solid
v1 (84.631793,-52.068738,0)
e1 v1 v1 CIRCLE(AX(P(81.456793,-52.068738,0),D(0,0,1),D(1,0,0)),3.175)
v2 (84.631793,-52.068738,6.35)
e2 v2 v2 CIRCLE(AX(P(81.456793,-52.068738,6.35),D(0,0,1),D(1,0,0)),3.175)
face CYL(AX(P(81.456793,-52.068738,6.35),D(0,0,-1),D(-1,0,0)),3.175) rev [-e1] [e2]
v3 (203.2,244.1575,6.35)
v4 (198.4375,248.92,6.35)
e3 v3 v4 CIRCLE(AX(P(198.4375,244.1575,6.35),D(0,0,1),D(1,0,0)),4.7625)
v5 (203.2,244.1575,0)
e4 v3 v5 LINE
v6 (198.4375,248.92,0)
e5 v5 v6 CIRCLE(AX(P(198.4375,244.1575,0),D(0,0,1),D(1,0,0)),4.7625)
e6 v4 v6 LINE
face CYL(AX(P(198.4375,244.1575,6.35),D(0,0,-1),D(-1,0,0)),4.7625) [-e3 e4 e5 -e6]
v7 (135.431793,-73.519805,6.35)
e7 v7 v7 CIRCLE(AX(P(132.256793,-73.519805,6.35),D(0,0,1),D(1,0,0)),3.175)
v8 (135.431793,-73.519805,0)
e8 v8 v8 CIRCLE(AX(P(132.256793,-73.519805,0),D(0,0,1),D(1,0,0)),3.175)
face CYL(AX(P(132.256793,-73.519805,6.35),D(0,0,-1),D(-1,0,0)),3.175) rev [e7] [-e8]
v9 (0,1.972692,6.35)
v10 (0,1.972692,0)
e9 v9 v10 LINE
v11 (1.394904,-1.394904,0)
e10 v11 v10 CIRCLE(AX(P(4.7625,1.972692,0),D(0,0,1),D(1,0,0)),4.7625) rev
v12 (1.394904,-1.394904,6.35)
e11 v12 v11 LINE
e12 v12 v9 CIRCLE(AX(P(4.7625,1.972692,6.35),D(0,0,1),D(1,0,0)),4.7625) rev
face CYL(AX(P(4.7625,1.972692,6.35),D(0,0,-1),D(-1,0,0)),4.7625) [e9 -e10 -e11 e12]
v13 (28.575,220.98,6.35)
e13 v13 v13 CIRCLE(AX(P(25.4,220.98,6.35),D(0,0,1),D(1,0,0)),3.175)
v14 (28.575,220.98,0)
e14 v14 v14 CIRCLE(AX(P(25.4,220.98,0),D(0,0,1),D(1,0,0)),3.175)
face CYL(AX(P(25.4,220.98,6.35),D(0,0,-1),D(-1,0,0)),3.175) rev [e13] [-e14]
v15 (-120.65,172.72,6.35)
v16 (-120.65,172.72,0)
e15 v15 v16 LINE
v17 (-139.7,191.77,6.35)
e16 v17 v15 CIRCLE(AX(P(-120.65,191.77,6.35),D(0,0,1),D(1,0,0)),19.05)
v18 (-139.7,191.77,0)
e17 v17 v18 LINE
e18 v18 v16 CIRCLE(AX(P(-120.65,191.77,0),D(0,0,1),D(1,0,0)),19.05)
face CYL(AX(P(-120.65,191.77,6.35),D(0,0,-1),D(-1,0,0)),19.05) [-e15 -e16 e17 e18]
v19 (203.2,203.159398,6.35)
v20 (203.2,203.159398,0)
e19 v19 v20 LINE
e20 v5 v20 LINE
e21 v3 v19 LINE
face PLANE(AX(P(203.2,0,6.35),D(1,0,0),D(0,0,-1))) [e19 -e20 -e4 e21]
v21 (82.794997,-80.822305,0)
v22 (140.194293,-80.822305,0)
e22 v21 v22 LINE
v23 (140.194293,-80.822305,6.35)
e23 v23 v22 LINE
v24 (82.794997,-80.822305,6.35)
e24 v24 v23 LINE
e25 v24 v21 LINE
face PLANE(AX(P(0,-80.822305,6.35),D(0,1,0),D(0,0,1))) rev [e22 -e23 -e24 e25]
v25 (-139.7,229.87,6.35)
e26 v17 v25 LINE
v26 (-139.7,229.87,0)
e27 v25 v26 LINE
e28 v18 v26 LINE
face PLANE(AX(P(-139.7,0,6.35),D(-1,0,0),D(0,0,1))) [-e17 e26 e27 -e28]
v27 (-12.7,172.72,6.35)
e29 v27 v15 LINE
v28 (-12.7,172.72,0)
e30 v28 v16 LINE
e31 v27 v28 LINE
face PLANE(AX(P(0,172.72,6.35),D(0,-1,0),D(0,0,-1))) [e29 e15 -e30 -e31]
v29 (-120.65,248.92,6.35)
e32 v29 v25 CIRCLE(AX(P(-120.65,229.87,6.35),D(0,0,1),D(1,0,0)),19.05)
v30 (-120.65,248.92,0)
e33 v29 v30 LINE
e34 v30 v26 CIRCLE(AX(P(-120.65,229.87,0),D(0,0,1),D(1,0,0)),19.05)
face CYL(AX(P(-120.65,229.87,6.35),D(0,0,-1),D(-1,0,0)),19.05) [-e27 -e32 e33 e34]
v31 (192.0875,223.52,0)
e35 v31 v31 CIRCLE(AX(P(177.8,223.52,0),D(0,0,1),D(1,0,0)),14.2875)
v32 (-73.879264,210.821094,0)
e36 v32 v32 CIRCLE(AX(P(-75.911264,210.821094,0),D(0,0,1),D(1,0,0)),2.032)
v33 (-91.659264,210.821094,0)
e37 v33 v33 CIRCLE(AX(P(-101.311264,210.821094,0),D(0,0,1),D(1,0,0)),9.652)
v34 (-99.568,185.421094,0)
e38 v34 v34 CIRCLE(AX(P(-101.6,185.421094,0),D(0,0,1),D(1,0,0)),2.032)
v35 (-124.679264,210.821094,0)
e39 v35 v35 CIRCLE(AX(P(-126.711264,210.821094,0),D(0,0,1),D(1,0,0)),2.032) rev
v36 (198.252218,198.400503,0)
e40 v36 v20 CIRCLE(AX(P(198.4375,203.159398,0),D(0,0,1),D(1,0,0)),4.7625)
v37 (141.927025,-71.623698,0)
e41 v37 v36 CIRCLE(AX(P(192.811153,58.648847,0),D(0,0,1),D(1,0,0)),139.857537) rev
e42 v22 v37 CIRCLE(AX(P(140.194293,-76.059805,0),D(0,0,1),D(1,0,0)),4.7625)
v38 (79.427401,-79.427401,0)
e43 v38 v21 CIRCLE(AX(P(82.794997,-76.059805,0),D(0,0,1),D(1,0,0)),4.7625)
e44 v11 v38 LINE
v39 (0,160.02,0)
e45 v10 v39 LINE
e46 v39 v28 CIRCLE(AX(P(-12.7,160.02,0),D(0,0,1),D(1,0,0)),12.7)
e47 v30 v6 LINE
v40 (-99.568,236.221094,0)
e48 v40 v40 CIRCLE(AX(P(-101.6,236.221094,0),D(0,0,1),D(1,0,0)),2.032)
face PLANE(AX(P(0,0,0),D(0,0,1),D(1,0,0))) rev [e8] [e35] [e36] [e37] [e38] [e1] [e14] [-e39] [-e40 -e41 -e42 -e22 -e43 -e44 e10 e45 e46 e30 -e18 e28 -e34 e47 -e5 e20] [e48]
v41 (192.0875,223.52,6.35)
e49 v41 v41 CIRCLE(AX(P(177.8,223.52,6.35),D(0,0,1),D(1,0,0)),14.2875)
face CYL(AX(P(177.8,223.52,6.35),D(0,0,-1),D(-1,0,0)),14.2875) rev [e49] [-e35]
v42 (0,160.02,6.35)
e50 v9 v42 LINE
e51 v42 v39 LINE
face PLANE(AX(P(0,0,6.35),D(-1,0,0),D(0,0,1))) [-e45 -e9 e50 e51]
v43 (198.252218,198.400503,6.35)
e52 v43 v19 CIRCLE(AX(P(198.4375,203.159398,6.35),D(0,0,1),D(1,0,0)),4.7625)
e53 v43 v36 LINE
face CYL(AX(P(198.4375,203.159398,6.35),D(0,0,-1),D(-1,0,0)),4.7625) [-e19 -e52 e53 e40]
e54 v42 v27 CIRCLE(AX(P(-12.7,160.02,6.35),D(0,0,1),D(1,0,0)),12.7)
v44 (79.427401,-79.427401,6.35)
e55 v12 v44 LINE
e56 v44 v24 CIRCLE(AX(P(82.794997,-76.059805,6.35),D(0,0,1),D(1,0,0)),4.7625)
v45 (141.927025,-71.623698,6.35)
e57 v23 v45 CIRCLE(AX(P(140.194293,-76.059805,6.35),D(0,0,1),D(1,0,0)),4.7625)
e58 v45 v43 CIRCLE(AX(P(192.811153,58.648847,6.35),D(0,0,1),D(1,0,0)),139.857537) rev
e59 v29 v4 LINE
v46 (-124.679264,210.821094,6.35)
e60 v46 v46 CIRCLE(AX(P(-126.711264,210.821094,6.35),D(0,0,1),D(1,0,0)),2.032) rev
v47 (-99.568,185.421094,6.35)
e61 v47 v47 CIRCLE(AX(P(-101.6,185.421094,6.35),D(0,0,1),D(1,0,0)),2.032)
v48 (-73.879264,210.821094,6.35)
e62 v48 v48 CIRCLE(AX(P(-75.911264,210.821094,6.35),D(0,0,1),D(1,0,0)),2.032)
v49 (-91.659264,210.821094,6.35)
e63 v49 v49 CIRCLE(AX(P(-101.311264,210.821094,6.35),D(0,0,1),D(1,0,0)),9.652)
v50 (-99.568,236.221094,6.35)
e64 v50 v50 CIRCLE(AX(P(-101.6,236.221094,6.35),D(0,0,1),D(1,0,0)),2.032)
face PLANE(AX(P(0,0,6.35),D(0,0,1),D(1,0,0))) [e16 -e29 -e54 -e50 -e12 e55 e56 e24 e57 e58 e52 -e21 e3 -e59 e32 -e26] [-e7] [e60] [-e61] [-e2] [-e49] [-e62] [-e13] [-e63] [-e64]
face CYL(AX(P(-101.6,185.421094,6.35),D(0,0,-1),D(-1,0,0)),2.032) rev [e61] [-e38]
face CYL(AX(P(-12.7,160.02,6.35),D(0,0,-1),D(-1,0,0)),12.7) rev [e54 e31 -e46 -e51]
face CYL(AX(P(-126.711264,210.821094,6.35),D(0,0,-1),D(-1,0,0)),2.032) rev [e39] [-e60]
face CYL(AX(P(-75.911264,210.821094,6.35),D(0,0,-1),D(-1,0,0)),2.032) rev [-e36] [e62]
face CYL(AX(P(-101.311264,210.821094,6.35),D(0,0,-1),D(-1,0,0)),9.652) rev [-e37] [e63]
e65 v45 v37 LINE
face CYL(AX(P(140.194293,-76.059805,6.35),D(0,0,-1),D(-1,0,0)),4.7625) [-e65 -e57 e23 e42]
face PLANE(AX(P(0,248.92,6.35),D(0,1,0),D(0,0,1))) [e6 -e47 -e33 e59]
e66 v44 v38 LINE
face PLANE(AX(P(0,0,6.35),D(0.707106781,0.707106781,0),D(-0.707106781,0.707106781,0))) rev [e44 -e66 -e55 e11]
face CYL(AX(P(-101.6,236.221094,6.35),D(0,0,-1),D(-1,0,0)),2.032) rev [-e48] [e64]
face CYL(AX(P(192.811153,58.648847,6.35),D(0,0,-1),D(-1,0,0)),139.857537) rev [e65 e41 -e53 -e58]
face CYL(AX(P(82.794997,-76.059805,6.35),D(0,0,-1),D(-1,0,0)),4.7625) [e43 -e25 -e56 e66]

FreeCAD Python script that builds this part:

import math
import FreeCAD as App
import Part
import Sketcher

V = App.Vector
Q = App.Units.Quantity

doc = App.newDocument("Part")
body = doc.addObject("PartDesign::Body", "Body")

# Sketch on XY plane
sketch1 = body.newObject("Sketcher::SketchObject", "Sketch")
sketch1.AttachmentSupport = (doc.getObject("XY_Plane"), [""])
sketch1.MapMode = "FlatFace"
sketch1.addGeometry([
    Part.LineSegment(V(0, 160, 0), V(0, 2, 0)),  # 0
    Part.ArcOfCircle(Part.Circle(V(4.8, 2, 0), V(0, 0, 1), 4.8), math.radians(180), math.radians(225)),  # 1
    Part.LineSegment(V(1.4, -1.4, 0), V(79.4, -79.4, 0)),  # 2
    Part.ArcOfCircle(Part.Circle(V(82.8, -76.1, 0), V(0, 0, 1), 4.8), math.radians(-135), math.radians(-90)),  # 3
    Part.LineSegment(V(82.8, -80.8, 0), V(140.2, -80.8, 0)),  # 4
    Part.ArcOfCircle(Part.Circle(V(140.2, -76.1, 0), V(0, 0, 1), 4.8), math.radians(-90), math.radians(69)),  # 5
    Part.ArcOfCircle(Part.Circle(V(192.8, 58.6, 0), V(0, 0, 1), 139.9), math.radians(88), math.radians(249)),  # 6
    Part.ArcOfCircle(Part.Circle(V(198.4, 203.2, 0), V(0, 0, 1), 4.8), math.radians(-92), math.radians(0)),  # 7
    Part.LineSegment(V(203.2, 203.2, 0), V(203.2, 244.2, 0)),  # 8
    Part.ArcOfCircle(Part.Circle(V(198.4, 244.2, 0), V(0, 0, 1), 4.8), math.radians(0), math.radians(90)),  # 9
    Part.LineSegment(V(198.4, 248.9, 0), V(-120.7, 248.9, 0)),  # 10
    Part.ArcOfCircle(Part.Circle(V(-120.7, 229.9, 0), V(0, 0, 1), 19), math.radians(90), math.radians(180)),  # 11
    Part.LineSegment(V(-139.7, 229.9, 0), V(-139.7, 191.8, 0)),  # 12
    Part.ArcOfCircle(Part.Circle(V(-120.7, 191.8, 0), V(0, 0, 1), 19), math.radians(180), math.radians(270)),  # 13
    Part.LineSegment(V(-120.7, 172.7, 0), V(-12.7, 172.7, 0)),  # 14
    Part.ArcOfCircle(Part.Circle(V(-12.7, 160, 0), V(0, 0, 1), 12.7), math.radians(0), math.radians(90)),  # 15
    Part.Circle(V(132.3, -73.5, 0), V(0, 0, 1), 3.2),  # 16
    Part.Circle(V(81.5, -52.1, 0), V(0, 0, 1), 3.2),  # 17
    Part.Circle(V(177.8, 223.5, 0), V(0, 0, 1), 14.3),  # 18
    Part.Circle(V(25.4, 221, 0), V(0, 0, 1), 3.2),  # 19
    Part.Circle(V(-101.6, 185.4, 0), V(0, 0, 1), 2),  # 20
    Part.Circle(V(-75.9, 210.8, 0), V(0, 0, 1), 2),  # 21
    Part.Circle(V(-101.3, 210.8, 0), V(0, 0, 1), 9.7),  # 22
    Part.Circle(V(-126.7, 210.8, 0), V(0, 0, 1), 2),  # 23
    Part.Circle(V(-101.6, 236.2, 0), V(0, 0, 1), 2),  # 24
], False)
sketch1.addConstraint([
    Sketcher.Constraint("Tangent", 0, 2, 1, 1),
    Sketcher.Constraint("Tangent", 1, 2, 2, 1),
    Sketcher.Constraint("Tangent", 2, 2, 3, 1),
    Sketcher.Constraint("Tangent", 3, 2, 4, 1),
    Sketcher.Constraint("Tangent", 4, 2, 5, 1),
    Sketcher.Constraint("Tangent", 5, 2, 6, 2),
    Sketcher.Constraint("Tangent", 6, 1, 7, 1),
    Sketcher.Constraint("Tangent", 7, 2, 8, 1),
    Sketcher.Constraint("Tangent", 8, 2, 9, 1),
    Sketcher.Constraint("Tangent", 9, 2, 10, 1),
    Sketcher.Constraint("Tangent", 10, 2, 11, 1),
    Sketcher.Constraint("Tangent", 11, 2, 12, 1),
    Sketcher.Constraint("Tangent", 12, 2, 13, 1),
    Sketcher.Constraint("Tangent", 13, 2, 14, 1),
    Sketcher.Constraint("Tangent", 14, 2, 15, 2),
    Sketcher.Constraint("Tangent", 15, 1, 0, 1),
    Sketcher.Constraint("Vertical", 0),
    Sketcher.Constraint("Horizontal", 4),
    Sketcher.Constraint("Vertical", 8),
    Sketcher.Constraint("Horizontal", 10),
    Sketcher.Constraint("Vertical", 12),
    Sketcher.Constraint("Horizontal", 14),
    Sketcher.Constraint("Equal", 1, 3),
    Sketcher.Constraint("Equal", 3, 5),
    Sketcher.Constraint("Equal", 5, 7),
    Sketcher.Constraint("Equal", 7, 9),
    Sketcher.Constraint("Equal", 11, 13),
    Sketcher.Constraint("Equal", 16, 17),
    Sketcher.Constraint("Equal", 17, 19),
    Sketcher.Constraint("Equal", 20, 21),
    Sketcher.Constraint("Equal", 21, 23),
    Sketcher.Constraint("Equal", 23, 24),
    Sketcher.Constraint("PointOnObject", 0, 2, -2),
    Sketcher.Constraint("Horizontal", 21, 3, 22, 3),
    Sketcher.Constraint("Horizontal", 22, 3, 23, 3),
    Sketcher.Constraint("Vertical", 20, 3, 24, 3),
    Sketcher.Constraint("Radius", 15, Q("0.5 in")),
    Sketcher.Constraint("Diameter", 16, Q("0.25 in")),
    Sketcher.Constraint("Diameter", 20, Q("0.16 in")),
    Sketcher.Constraint("Diameter", 22, Q("0.76 in")),
    Sketcher.Constraint("Radius", 11, Q("0.75 in")),
    Sketcher.Constraint("Diameter", 18, Q("1.125 in")),
    Sketcher.Constraint("DistanceY", 12, 2, 12, 1, Q("1.5 in")),
    Sketcher.Constraint("DistanceX", -1, 1, 18, 3, Q("7 in")),
    Sketcher.Constraint("DistanceX", -1, 1, 19, 3, Q("1 in")),
    Sketcher.Constraint("DistanceX", 20, 3, -1, 1, Q("4 in")),
    Sketcher.Constraint("DistanceX", -1, 1, 7, 2, Q("8 in")),
    Sketcher.Constraint("Angle", 2, Q("-45 deg")),
    Sketcher.Constraint("Radius", 1, Q("0.1875 in")),
    Sketcher.Constraint("DistanceX", 17, 3, 16, 3, Q("2 in")),
    Sketcher.Constraint("DistanceY", 20, 3, 21, 3, Q("1 in")),
    Sketcher.Constraint("DistanceX", 22, 3, 21, 3, Q("1 in")),
    Sketcher.Constraint("DistanceX", 23, 3, 22, 3, Q("1 in")),
    Sketcher.Constraint("DistanceY", 22, 3, 24, 3, Q("1 in")),
    Sketcher.Constraint("DistanceY", 18, 3, 9, 2, Q("1 in")),
    Sketcher.Constraint("DistanceX", 14, 1, 14, 2, Q("4.25 in")),
    Sketcher.Constraint("DistanceY", -1, 1, 15, 3, Q("6.3 in")),
    Sketcher.Constraint("DistanceY", -1, 1, 19, 3, Q("8.7 in")),
    Sketcher.Constraint("DistanceY", 5, 3, 16, 3, Q("0.1 in")),
    Sketcher.Constraint("DistanceX", 16, 3, 5, 3, Q("0.3125 in")),
    Sketcher.Constraint("Radius", 6, Q("139.857537 mm")),
    Sketcher.Constraint("DistanceX", -1, 1, 2, 2, Q("79.427401 mm")),
    Sketcher.Constraint("DistanceY", 2, 2, -1, 1, Q("79.427401 mm")),
    Sketcher.Constraint("DistanceY", 5, 2, -1, 1, Q("71.623698 mm")),
    Sketcher.Constraint("DistanceX", 4, 1, 4, 2, Q("57.399296 mm")),
    Sketcher.Constraint("DistanceY", 17, 3, 1, 3, Q("54.04143 mm")),
    Sketcher.Constraint("DistanceY", -1, 1, 20, 3, Q("185.421094 mm")),
    Sketcher.Constraint("DistanceX", 21, 3, -1, 1, Q("75.911264 mm")),
])
pad1 = body.newObject("PartDesign::Pad", "Pad")
pad1.Profile = sketch1
pad1.Length = Q("0.25 in")

doc.recompute()
